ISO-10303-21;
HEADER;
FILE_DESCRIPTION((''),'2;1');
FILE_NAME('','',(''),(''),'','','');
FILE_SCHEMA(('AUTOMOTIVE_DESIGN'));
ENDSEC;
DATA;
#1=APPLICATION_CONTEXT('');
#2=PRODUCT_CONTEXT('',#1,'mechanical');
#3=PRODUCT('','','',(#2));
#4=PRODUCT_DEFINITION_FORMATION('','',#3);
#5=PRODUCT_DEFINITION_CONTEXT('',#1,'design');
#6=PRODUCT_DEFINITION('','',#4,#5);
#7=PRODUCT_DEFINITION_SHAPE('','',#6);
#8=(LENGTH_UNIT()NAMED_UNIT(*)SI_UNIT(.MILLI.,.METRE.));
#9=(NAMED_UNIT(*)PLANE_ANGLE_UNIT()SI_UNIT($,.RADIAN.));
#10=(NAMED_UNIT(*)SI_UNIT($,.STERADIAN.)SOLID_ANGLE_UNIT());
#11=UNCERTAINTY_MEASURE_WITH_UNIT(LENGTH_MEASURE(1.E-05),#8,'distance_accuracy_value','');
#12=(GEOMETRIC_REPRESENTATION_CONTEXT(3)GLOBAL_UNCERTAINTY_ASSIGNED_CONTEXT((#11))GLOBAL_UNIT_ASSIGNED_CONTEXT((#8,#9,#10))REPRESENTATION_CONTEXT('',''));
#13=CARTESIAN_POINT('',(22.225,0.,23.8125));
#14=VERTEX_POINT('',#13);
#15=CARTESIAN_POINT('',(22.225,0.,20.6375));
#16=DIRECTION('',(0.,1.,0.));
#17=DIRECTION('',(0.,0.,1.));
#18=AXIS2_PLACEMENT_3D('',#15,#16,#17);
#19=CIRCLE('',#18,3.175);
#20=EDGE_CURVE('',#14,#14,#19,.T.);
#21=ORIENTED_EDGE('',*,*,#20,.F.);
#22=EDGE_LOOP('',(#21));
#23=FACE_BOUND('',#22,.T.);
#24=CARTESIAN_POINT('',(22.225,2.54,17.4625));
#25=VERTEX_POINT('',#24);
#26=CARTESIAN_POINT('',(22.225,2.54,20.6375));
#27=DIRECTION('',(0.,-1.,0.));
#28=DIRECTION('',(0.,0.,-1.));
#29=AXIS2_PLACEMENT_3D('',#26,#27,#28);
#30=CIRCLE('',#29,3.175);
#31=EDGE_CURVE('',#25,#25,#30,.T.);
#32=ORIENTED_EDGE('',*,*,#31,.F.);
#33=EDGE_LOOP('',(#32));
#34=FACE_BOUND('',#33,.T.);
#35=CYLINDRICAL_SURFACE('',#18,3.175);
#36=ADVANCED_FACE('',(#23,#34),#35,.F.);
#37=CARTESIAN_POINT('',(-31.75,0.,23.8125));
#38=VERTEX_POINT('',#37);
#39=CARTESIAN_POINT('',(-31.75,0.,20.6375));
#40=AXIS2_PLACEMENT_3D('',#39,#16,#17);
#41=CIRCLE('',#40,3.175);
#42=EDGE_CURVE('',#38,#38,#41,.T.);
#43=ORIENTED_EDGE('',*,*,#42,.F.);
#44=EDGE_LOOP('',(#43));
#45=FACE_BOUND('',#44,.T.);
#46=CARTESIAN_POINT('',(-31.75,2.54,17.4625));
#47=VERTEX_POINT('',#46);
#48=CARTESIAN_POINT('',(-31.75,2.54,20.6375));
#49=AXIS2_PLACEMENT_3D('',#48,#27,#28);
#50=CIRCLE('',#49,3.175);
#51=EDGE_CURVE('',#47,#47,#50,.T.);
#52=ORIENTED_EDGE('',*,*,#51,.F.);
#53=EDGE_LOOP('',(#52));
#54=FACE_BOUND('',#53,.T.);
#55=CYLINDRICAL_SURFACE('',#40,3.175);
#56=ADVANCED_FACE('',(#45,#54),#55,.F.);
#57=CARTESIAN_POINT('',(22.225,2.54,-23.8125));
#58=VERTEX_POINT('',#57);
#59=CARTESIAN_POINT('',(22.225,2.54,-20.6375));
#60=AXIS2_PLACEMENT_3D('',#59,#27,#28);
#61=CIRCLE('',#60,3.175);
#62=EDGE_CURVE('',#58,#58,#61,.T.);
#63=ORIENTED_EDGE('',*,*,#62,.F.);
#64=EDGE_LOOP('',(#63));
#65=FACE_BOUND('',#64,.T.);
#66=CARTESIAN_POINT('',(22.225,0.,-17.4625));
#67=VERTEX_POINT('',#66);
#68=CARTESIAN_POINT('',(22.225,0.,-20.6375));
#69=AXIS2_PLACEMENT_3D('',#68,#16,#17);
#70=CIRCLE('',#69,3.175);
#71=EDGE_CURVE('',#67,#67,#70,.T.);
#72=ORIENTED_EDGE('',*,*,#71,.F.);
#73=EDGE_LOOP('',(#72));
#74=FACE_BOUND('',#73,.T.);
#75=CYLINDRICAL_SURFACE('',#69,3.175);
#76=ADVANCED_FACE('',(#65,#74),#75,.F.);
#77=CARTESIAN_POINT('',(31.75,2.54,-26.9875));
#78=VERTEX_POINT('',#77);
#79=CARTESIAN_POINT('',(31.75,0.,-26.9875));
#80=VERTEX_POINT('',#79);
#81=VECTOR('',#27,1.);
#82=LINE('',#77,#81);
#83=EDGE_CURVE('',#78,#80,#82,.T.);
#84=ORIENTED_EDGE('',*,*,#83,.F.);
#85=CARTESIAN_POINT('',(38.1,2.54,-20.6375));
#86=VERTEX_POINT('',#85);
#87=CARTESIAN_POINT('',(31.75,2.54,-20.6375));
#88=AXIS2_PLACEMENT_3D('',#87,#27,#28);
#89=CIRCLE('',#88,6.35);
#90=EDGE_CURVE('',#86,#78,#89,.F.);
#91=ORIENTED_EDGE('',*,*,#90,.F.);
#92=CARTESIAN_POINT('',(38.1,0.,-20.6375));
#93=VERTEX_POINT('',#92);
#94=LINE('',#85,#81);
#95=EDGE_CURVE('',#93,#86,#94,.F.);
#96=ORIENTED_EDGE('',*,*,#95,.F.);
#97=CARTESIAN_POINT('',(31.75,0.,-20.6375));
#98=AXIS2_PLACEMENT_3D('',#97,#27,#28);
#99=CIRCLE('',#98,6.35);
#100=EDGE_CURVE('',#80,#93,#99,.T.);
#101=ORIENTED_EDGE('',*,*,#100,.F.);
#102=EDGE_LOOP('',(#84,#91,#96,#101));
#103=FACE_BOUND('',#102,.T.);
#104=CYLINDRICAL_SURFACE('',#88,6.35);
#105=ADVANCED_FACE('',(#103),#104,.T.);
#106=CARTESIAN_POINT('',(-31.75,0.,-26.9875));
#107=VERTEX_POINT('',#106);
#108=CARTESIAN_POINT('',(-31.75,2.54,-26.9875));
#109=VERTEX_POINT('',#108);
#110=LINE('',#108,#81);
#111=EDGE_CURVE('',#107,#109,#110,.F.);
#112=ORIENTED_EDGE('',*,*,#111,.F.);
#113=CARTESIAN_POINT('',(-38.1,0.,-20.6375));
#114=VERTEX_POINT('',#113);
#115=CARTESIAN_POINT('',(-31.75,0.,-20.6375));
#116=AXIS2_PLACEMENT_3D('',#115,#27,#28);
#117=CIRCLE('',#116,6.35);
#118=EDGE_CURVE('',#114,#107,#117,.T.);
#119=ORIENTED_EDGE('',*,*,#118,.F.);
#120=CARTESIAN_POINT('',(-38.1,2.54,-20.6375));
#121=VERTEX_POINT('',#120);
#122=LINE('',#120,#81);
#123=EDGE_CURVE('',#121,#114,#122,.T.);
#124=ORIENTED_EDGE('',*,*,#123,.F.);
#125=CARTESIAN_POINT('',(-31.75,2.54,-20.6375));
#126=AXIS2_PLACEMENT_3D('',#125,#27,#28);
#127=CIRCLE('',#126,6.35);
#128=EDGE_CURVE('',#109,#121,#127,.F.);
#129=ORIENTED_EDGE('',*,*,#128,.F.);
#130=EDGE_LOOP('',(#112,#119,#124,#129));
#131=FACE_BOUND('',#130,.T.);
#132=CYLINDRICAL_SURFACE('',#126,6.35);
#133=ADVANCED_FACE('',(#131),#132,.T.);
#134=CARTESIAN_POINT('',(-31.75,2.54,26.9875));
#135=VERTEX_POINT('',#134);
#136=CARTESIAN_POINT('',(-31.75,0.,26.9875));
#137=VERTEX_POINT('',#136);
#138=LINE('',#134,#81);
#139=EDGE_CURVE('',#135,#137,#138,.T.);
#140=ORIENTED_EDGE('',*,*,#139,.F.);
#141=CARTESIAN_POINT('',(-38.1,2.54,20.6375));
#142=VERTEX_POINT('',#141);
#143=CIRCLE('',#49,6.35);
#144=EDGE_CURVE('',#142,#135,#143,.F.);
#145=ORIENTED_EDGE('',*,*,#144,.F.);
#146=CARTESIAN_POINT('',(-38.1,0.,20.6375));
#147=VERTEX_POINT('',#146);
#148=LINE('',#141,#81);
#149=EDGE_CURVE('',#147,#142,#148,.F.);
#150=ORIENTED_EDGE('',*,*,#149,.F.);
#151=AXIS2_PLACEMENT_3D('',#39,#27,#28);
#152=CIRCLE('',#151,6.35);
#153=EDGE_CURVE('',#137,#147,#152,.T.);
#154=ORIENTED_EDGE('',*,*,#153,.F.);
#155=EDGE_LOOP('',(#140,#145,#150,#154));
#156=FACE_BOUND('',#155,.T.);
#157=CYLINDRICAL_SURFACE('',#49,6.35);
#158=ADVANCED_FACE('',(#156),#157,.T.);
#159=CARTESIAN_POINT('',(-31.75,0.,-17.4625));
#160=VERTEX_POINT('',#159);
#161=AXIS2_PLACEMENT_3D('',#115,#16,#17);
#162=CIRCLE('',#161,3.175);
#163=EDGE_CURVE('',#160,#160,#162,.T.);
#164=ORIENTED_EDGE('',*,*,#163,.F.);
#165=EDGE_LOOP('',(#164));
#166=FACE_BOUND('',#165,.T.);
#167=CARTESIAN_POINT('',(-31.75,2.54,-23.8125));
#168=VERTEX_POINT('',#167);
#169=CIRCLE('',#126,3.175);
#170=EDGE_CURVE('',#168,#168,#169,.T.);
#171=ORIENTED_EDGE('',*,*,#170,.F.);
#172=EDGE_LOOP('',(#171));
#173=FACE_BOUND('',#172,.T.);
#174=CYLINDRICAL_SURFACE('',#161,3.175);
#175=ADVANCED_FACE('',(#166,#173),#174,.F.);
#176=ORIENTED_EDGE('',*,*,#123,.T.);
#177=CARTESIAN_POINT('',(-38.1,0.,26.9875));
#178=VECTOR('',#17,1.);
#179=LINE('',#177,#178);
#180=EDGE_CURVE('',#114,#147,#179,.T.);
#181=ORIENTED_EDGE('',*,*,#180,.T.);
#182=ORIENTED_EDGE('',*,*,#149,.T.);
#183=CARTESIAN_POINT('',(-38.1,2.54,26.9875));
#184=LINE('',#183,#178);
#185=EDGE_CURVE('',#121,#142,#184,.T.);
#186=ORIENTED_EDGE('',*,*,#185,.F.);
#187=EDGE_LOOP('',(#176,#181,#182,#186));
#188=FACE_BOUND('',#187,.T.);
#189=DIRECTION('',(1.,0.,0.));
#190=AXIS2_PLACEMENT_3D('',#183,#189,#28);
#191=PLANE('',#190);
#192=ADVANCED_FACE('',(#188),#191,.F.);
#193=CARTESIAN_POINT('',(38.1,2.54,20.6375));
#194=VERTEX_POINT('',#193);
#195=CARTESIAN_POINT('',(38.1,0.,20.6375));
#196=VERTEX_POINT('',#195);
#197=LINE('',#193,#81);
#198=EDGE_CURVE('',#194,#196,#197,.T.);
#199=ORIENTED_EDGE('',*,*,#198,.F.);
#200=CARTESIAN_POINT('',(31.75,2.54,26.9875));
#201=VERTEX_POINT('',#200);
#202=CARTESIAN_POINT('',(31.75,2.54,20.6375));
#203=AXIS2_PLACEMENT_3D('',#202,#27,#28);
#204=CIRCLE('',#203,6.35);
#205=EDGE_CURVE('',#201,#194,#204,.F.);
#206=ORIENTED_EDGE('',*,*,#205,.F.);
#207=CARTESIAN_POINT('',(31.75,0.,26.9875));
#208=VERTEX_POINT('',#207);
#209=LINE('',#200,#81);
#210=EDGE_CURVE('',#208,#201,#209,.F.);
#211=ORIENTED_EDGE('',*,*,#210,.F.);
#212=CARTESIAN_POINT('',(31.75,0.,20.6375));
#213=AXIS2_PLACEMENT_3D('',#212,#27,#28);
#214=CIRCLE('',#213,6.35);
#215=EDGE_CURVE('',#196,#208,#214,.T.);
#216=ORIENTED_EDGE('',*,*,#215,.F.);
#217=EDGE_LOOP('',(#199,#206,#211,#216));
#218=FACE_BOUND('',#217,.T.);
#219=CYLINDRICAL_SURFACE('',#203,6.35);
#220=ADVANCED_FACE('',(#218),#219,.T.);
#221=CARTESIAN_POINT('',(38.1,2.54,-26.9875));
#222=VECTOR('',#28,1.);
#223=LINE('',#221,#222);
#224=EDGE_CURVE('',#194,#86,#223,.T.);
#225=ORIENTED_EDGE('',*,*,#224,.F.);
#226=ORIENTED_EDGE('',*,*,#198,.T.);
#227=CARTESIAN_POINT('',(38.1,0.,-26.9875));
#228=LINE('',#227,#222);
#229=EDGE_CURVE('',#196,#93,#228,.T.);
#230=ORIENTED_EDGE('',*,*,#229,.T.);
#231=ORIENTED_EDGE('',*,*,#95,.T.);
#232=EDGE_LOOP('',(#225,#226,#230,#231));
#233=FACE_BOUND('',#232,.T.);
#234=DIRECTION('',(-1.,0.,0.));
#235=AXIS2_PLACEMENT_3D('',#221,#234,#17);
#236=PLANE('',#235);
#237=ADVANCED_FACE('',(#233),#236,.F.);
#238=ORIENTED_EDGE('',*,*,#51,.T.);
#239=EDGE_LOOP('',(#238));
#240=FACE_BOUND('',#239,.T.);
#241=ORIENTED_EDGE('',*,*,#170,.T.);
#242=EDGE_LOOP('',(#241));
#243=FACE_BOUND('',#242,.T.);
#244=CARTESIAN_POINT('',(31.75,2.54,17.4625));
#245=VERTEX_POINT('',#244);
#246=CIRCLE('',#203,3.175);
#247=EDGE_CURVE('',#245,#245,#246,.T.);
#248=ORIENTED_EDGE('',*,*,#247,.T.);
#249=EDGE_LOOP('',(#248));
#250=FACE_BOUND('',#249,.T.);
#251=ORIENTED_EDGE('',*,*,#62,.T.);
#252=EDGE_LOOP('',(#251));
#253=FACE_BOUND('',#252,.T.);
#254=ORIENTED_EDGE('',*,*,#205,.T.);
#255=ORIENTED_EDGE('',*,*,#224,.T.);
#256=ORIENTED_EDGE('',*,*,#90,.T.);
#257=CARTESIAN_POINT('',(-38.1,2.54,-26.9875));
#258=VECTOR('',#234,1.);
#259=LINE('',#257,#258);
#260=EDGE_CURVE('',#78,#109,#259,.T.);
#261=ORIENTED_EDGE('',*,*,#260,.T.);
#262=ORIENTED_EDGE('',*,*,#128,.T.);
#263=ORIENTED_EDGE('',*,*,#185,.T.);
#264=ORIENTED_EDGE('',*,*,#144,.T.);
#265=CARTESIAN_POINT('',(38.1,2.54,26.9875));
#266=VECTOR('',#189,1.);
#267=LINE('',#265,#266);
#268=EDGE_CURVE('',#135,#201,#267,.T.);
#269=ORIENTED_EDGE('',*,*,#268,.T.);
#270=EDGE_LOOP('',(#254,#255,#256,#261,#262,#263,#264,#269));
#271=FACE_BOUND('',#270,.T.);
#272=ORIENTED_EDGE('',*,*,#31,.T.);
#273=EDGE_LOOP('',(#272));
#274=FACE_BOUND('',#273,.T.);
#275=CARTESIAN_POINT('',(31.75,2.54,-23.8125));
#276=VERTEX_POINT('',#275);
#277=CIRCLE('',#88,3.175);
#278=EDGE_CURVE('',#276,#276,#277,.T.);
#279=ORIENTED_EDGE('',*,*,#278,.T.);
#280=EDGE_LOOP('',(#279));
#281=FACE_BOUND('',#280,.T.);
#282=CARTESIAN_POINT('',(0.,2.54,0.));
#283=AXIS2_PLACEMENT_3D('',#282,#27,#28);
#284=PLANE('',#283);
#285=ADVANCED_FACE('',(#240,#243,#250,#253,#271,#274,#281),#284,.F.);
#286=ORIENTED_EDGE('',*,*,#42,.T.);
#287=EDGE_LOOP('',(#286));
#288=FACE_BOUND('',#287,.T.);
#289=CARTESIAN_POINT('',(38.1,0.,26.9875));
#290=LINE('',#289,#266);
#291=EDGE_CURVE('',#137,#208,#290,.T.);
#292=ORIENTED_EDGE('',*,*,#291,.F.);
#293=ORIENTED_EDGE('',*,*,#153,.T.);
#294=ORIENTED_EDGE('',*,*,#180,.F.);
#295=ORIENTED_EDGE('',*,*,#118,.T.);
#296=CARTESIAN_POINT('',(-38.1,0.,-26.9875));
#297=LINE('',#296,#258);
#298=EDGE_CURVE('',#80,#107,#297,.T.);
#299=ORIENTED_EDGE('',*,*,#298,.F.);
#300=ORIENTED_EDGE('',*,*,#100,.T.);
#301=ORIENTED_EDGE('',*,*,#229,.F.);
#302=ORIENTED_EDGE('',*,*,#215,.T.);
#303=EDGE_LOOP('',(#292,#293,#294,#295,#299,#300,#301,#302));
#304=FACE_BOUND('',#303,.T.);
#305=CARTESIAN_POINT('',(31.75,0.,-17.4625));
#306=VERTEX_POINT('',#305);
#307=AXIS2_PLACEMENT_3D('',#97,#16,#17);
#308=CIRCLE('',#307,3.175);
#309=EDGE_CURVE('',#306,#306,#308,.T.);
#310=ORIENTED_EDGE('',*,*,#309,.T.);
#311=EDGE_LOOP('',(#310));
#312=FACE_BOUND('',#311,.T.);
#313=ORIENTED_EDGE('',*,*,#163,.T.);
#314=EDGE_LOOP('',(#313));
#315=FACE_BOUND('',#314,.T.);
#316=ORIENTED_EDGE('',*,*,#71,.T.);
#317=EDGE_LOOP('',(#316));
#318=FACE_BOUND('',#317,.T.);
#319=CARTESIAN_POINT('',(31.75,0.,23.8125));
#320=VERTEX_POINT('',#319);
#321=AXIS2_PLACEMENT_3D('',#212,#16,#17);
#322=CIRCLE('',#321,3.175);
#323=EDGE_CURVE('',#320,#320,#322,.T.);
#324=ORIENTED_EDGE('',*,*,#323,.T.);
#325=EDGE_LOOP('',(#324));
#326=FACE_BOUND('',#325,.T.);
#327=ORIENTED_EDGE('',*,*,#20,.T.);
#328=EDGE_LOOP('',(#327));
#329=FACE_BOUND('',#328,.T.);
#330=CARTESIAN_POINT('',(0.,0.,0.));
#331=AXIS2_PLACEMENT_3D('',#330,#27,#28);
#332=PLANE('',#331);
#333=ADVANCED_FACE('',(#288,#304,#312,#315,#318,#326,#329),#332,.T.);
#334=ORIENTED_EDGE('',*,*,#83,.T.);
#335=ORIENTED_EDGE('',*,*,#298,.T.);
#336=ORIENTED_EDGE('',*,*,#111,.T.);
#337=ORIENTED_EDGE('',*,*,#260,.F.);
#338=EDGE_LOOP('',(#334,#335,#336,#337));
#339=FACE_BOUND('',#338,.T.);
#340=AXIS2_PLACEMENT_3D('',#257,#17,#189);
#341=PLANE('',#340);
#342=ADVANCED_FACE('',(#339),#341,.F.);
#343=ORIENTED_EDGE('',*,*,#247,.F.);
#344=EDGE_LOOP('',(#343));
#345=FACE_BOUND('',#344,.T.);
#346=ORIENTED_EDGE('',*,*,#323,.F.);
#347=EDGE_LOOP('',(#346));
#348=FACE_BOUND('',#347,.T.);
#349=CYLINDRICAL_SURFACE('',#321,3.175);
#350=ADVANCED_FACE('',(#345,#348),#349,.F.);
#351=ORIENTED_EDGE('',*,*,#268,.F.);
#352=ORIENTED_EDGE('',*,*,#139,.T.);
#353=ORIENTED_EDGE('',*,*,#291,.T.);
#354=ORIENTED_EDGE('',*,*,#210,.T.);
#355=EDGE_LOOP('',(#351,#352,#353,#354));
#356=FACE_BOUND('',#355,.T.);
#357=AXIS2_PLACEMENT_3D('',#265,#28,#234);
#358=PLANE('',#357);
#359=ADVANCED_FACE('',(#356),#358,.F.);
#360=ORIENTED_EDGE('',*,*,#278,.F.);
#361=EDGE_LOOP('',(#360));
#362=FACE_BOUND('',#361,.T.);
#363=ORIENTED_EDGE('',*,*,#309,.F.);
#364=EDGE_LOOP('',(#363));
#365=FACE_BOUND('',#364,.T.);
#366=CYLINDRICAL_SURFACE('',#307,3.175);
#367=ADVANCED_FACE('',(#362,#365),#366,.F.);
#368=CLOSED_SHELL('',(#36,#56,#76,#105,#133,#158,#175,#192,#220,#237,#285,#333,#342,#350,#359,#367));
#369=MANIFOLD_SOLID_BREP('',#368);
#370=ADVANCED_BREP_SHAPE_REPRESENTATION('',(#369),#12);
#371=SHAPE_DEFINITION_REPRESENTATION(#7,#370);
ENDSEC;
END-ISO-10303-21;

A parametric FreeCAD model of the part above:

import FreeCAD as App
import Part
import Sketcher

V = App.Vector
Q = App.Units.Quantity


def edges_at(feature, points):
    """Names of the edges that pass closest to the given points."""
    edges = feature.Shape.Edges
    near = lambda p: min(range(len(edges)), key=lambda i: edges[i].distToShape(Part.Vertex(*p))[0])
    return sorted({f"Edge{near(p) + 1}" for p in points})

doc = App.newDocument("Part")
params = doc.addObject("Spreadsheet::Sheet", "Params")
for row, (alias, value) in enumerate([
    ("sketch1_width", "3 in"),
    ("sketch1_height", "2.125 in"),
    ("pad1_length", "0.1 in"),
    ("sketch2_diameter", "0.25 in"),
    ("fillet_radius", "0.25 in"),
], start=1):
    params.set(f"A{row}", alias)
    params.set(f"B{row}", "=" + value)
    params.setAlias(f"B{row}", alias)

body = doc.addObject("PartDesign::Body", "Body")

# Sketch on XZ plane
sketch1 = body.newObject("Sketcher::SketchObject", "Sketch")
sketch1.AttachmentSupport = (doc.getObject("XZ_Plane"), [""])
sketch1.MapMode = "FlatFace"
sketch1.addGeometry(Part.LineSegment(V(-38, -27, 0), V(-38, 27, 0)), False)
sketch1.addGeometry(Part.LineSegment(V(-38, 27, 0), V(38, 27, 0)), False)
sketch1.addGeometry(Part.LineSegment(V(38, 27, 0), V(38, -27, 0)), False)
sketch1.addGeometry(Part.LineSegment(V(38, -27, 0), V(-38, -27, 0)), False)
sketch1.addConstraint(Sketcher.Constraint("Coincident", 0, 2, 1, 1))
sketch1.addConstraint(Sketcher.Constraint("Coincident", 1, 2, 2, 1))
sketch1.addConstraint(Sketcher.Constraint("Coincident", 2, 2, 3, 1))
sketch1.addConstraint(Sketcher.Constraint("Coincident", 3, 2, 0, 1))
sketch1.addConstraint(Sketcher.Constraint("Vertical", 0))
sketch1.addConstraint(Sketcher.Constraint("Horizontal", 1))
sketch1.addConstraint(Sketcher.Constraint("Vertical", 2))
sketch1.addConstraint(Sketcher.Constraint("Horizontal", 3))
sketch1.addConstraint(Sketcher.Constraint("Symmetric", 0, 2, 2, 2, -1, 1))
sketch1.addConstraint(Sketcher.Constraint("DistanceX", 1, 1, 1, 2, Q("3 in")))
sketch1.addConstraint(Sketcher.Constraint("DistanceY", 0, 1, 0, 2, Q("2.125 in")))
sketch1.setExpression("Constraints[9]", "Params.sketch1_width")
sketch1.setExpression("Constraints[10]", "Params.sketch1_height")
pad1 = body.newObject("PartDesign::Pad", "Pad")
pad1.Profile = sketch1
pad1.setExpression("Length", "Params.pad1_length")
pad1.Reversed = True

# Sketch on XZ plane
sketch2 = body.newObject("Sketcher::SketchObject", "Sketch001")
sketch2.AttachmentSupport = (doc.getObject("XZ_Plane"), [""])
sketch2.MapMode = "FlatFace"
sketch2.AttachmentOffset = App.Placement(V(0, 0, -0.1 * 25.4), App.Rotation())
sketch2.addGeometry(Part.Circle(V(31.8, 20.6, 0), V(0, 0, 1), 3.2), False)
sketch2.addGeometry(Part.Circle(V(22.2, 20.6, 0), V(0, 0, 1), 3.2), False)
sketch2.addGeometry(Part.Circle(V(-31.8, 20.6, 0), V(0, 0, 1), 3.2), False)
sketch2.addGeometry(Part.Circle(V(-31.8, -20.6, 0), V(0, 0, 1), 3.2), False)
sketch2.addGeometry(Part.Circle(V(22.2, -20.6, 0), V(0, 0, 1), 3.2), False)
sketch2.addGeometry(Part.Circle(V(31.8, -20.6, 0), V(0, 0, 1), 3.2), False)
sketch2.addConstraint(Sketcher.Constraint("Equal", 0, 1))
sketch2.addConstraint(Sketcher.Constraint("Equal", 1, 2))
sketch2.addConstraint(Sketcher.Constraint("Equal", 2, 3))
sketch2.addConstraint(Sketcher.Constraint("Equal", 3, 4))
sketch2.addConstraint(Sketcher.Constraint("Equal", 4, 5))
sketch2.addConstraint(Sketcher.Constraint("Symmetric", 0, 3, 3, 3, -1, 1))
sketch2.addConstraint(Sketcher.Constraint("Symmetric", 2, 3, 5, 3, -1, 1))
sketch2.addConstraint(Sketcher.Constraint("Symmetric", 0, 3, 2, 3, -2))
sketch2.addConstraint(Sketcher.Constraint("Symmetric", 1, 3, 4, 3, -1))
sketch2.addConstraint(Sketcher.Constraint("Horizontal", 0, 3, 1, 3))
sketch2.addConstraint(Sketcher.Constraint("Diameter", 0, Q("0.25 in")))
sketch2.addConstraint(Sketcher.Constraint("DistanceX", 2, 3, 0, 3, Q("2.5 in")))
sketch2.addConstraint(Sketcher.Constraint("DistanceY", -1, 1, 0, 3, Q("0.8125 in")))
sketch2.addConstraint(Sketcher.Constraint("DistanceX", -1, 1, 1, 3, Q("0.875 in")))
sketch2.setExpression("Constraints[10]", "Params.sketch2_diameter")
pocket1 = body.newObject("PartDesign::Pocket", "Pocket")
pocket1.Profile = sketch2
pocket1.Type = "ThroughAll"
pocket1.Midplane = True
doc.recompute()

fillet = body.newObject("PartDesign::Fillet", "Fillet")
fillet.Base = (pocket1, edges_at(pocket1, [
    (-38.1, 1.27, -26.988),
    (38.1, 1.27, -26.988),
    (38.1, 1.27, 26.988),
    (-38.1, 1.27, 26.988),
]))
fillet.setExpression("Radius", "Params.fillet_radius")

doc.recompute()
